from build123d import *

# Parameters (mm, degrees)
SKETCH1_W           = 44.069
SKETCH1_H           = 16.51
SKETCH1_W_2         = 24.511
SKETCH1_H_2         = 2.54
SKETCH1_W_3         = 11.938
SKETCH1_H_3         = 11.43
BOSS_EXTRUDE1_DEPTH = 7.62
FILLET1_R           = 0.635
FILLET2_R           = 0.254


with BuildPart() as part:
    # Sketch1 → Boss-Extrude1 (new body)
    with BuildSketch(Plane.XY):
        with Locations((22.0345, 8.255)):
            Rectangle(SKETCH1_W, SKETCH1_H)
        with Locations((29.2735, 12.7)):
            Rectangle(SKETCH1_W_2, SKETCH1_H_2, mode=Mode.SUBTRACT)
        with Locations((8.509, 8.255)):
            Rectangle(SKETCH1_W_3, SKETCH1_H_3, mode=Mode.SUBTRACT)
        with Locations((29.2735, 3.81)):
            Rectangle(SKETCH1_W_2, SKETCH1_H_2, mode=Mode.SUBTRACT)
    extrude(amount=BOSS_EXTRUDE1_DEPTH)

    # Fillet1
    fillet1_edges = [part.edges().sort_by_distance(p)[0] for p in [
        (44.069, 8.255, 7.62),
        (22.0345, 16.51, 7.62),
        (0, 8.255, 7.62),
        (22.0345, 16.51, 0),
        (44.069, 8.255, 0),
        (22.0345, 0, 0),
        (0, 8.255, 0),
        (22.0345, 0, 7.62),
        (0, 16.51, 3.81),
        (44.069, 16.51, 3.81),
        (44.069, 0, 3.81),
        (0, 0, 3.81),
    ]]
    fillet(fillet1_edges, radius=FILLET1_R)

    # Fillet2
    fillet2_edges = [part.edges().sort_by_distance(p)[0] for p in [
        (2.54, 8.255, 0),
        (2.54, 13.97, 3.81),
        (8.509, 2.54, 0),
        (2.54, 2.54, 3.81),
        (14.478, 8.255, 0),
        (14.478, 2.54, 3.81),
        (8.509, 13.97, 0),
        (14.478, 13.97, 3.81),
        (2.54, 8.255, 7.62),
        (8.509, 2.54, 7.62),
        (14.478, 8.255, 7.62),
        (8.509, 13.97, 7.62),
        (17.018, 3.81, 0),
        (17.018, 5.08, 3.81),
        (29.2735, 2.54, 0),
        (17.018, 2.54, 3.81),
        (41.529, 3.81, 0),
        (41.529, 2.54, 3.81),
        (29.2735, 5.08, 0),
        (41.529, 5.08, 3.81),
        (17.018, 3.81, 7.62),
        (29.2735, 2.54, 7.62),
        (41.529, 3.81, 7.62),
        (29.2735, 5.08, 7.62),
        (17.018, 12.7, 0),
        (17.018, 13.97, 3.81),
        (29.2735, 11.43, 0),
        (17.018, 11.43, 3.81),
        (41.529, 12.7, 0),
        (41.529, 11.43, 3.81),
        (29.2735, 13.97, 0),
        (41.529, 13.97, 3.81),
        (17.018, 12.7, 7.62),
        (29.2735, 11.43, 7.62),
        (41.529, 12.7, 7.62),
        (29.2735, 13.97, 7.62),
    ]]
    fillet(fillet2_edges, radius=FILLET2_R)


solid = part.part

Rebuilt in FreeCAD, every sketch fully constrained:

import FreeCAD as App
import Part
import Sketcher
from FreeCAD import Vector
Q = App.Units.Quantity


def edges_at(feature, points):
    """Names of the edges that pass closest to the given points."""
    edges = feature.Shape.Edges
    near = lambda p: min(range(len(edges)), key=lambda i: edges[i].distToShape(Part.Vertex(*p))[0])
    return sorted({f"Edge{near(p) + 1}" for p in points})


def add_polygon(sketch, points):
    """Adds a closed chain of lines whose ends are joined by coincident constraints."""
    first, n = sketch.GeometryCount, len(points)
    for a, b in zip(points, points[1:] + points[:1]):
        sketch.addGeometry(Part.LineSegment(App.Vector(*a, 0), App.Vector(*b, 0)), False)
    for i in range(n):
        sketch.addConstraint(Sketcher.Constraint("Coincident", first + i, 2, first + (i + 1) % n, 1))

doc = App.newDocument("Part")
params = doc.addObject("Spreadsheet::Sheet", "Params")
for row, (alias, value) in enumerate([
    ("sketch1_height", "0.1 in"),
    ("sketch1_width", "0.47 in"),
    ("sketch1_height2", "0.65 in"),
    ("sketch1_height3", "0.45 in"),
    ("sketch1_width2", "1.735 in"),
    ("pad1_length", "0.3 in"),
    ("fillet_radius", "0.025 in"),
    ("fillet2_radius", "0.01 in"),
], start=1):
    params.set(f"A{row}", alias)
    params.set(f"B{row}", "=" + value)
    params.setAlias(f"B{row}", alias)

body = doc.addObject("PartDesign::Body", "Body")

# Sketch on XY plane
sketch1 = doc.addObject("Sketcher::SketchObject", "Sketch")
body.addObject(sketch1)
sketch1.AttachmentSupport = (doc.XY_Plane, [""])
sketch1.MapMode = "FlatFace"
add_polygon(sketch1, [(0, 16.5), (0, 0), (44.1, 0), (44.1, 16.5)])  # lines 0-3
add_polygon(sketch1, [(41.5, 2.5), (17, 2.5), (17, 5.1), (41.5, 5.1)])  # lines 4-7
add_polygon(sketch1, [(14.5, 2.5), (2.5, 2.5), (2.5, 14), (14.5, 14)])  # lines 8-11
add_polygon(sketch1, [(41.5, 11.4), (17, 11.4), (17, 14), (41.5, 14)])  # lines 12-15
sketch1.addConstraint([
    Sketcher.Constraint("Vertical", 0),
    Sketcher.Constraint("Horizontal", 1),
    Sketcher.Constraint("Vertical", 2),
    Sketcher.Constraint("Horizontal", 3),
    Sketcher.Constraint("Horizontal", 4),
    Sketcher.Constraint("Vertical", 5),
    Sketcher.Constraint("Horizontal", 6),
    Sketcher.Constraint("Vertical", 7),
    Sketcher.Constraint("Horizontal", 8),
    Sketcher.Constraint("Vertical", 9),
    Sketcher.Constraint("Horizontal", 10),
    Sketcher.Constraint("Vertical", 11),
    Sketcher.Constraint("Horizontal", 12),
    Sketcher.Constraint("Vertical", 13),
    Sketcher.Constraint("Horizontal", 14),
    Sketcher.Constraint("Vertical", 15),
    Sketcher.Constraint("Coincident", 0, 2, -1, 1),
    Sketcher.Constraint("Horizontal", 7, 2, 8, 2),
    Sketcher.Constraint("Horizontal", 10, 2, 13, 2),
    Sketcher.Constraint("Vertical", 5, 2, 12, 2),
    Sketcher.Constraint("Vertical", 7, 2, 14, 2),
    Sketcher.Constraint("Equal", 7, 13),
    Sketcher.Constraint("DistanceY", 5, 1, 5, 2, Q("0.1 in")),
    Sketcher.Constraint("DistanceX", 8, 2, 8, 1, Q("0.47 in")),
    Sketcher.Constraint("DistanceY", 0, 2, 0, 1, Q("0.65 in")),
    Sketcher.Constraint("DistanceY", 9, 1, 9, 2, Q("0.45 in")),
    Sketcher.Constraint("DistanceY", -1, 1, 4, 2, Q("0.1 in")),
    Sketcher.Constraint("DistanceX", -1, 1, 8, 2, Q("0.1 in")),
    Sketcher.Constraint("DistanceX", 6, 2, 1, 2, Q("0.1 in")),
    Sketcher.Constraint("DistanceX", 10, 2, 5, 2, Q("0.1 in")),
    Sketcher.Constraint("DistanceX", 1, 1, 1, 2, Q("1.735 in")),
])
sketch1.setExpression("Constraints[38]", "Params.sketch1_height")
sketch1.setExpression("Constraints[39]", "Params.sketch1_width")
sketch1.setExpression("Constraints[40]", "Params.sketch1_height2")
sketch1.setExpression("Constraints[41]", "Params.sketch1_height3")
sketch1.setExpression("Constraints[46]", "Params.sketch1_width2")
pad1 = doc.addObject("PartDesign::Pad", "Pad")
body.addObject(pad1)
pad1.Profile = sketch1
pad1.setExpression("Length", "Params.pad1_length")
doc.recompute()

fillet = doc.addObject("PartDesign::Fillet", "Fillet")
body.addObject(fillet)
fillet.Base = (pad1, edges_at(pad1, [
    (44.069, 8.255, 7.62),
    (22.035, 16.51, 7.62),
    (0, 8.255, 7.62),
    (22.035, 16.51, 0),
    (44.069, 8.255, 0),
    (22.035, 0, 0),
    (0, 8.255, 0),
    (22.035, 0, 7.62),
    (0, 16.51, 3.81),
    (44.069, 16.51, 3.81),
    (44.069, 0, 3.81),
    (0, 0, 3.81),
]))
fillet.setExpression("Radius", "Params.fillet_radius")
doc.recompute()

fillet2 = doc.addObject("PartDesign::Fillet", "Fillet001")
body.addObject(fillet2)
fillet2.Base = (fillet, edges_at(fillet, [
    (2.54, 8.255, 0),
    (2.54, 13.97, 3.81),
    (8.509, 2.54, 0),
    (2.54, 2.54, 3.81),
    (14.478, 8.255, 0),
    (14.478, 2.54, 3.81),
    (8.509, 13.97, 0),
    (14.478, 13.97, 3.81),
    (2.54, 8.255, 7.62),
    (8.509, 2.54, 7.62),
    (14.478, 8.255, 7.62),
    (8.509, 13.97, 7.62),
    (17.018, 3.81, 0),
    (17.018, 5.08, 3.81),
    (29.273, 2.54, 0),
    (17.018, 2.54, 3.81),
    (41.529, 3.81, 0),
    (41.529, 2.54, 3.81),
    (29.273, 5.08, 0),
    (41.529, 5.08, 3.81),
    (17.018, 3.81, 7.62),
    (29.273, 2.54, 7.62),
    (41.529, 3.81, 7.62),
    (29.273, 5.08, 7.62),
    (17.018, 12.7, 0),
    (17.018, 13.97, 3.81),
    (29.273, 11.43, 0),
    (17.018, 11.43, 3.81),
    (41.529, 12.7, 0),
    (41.529, 11.43, 3.81),
    (29.273, 13.97, 0),
    (41.529, 13.97, 3.81),
    (17.018, 12.7, 7.62),
    (29.273, 11.43, 7.62),
    (41.529, 12.7, 7.62),
    (29.273, 13.97, 7.62),
]))
fillet2.setExpression("Radius", "Params.fillet2_radius")

doc.recompute()
